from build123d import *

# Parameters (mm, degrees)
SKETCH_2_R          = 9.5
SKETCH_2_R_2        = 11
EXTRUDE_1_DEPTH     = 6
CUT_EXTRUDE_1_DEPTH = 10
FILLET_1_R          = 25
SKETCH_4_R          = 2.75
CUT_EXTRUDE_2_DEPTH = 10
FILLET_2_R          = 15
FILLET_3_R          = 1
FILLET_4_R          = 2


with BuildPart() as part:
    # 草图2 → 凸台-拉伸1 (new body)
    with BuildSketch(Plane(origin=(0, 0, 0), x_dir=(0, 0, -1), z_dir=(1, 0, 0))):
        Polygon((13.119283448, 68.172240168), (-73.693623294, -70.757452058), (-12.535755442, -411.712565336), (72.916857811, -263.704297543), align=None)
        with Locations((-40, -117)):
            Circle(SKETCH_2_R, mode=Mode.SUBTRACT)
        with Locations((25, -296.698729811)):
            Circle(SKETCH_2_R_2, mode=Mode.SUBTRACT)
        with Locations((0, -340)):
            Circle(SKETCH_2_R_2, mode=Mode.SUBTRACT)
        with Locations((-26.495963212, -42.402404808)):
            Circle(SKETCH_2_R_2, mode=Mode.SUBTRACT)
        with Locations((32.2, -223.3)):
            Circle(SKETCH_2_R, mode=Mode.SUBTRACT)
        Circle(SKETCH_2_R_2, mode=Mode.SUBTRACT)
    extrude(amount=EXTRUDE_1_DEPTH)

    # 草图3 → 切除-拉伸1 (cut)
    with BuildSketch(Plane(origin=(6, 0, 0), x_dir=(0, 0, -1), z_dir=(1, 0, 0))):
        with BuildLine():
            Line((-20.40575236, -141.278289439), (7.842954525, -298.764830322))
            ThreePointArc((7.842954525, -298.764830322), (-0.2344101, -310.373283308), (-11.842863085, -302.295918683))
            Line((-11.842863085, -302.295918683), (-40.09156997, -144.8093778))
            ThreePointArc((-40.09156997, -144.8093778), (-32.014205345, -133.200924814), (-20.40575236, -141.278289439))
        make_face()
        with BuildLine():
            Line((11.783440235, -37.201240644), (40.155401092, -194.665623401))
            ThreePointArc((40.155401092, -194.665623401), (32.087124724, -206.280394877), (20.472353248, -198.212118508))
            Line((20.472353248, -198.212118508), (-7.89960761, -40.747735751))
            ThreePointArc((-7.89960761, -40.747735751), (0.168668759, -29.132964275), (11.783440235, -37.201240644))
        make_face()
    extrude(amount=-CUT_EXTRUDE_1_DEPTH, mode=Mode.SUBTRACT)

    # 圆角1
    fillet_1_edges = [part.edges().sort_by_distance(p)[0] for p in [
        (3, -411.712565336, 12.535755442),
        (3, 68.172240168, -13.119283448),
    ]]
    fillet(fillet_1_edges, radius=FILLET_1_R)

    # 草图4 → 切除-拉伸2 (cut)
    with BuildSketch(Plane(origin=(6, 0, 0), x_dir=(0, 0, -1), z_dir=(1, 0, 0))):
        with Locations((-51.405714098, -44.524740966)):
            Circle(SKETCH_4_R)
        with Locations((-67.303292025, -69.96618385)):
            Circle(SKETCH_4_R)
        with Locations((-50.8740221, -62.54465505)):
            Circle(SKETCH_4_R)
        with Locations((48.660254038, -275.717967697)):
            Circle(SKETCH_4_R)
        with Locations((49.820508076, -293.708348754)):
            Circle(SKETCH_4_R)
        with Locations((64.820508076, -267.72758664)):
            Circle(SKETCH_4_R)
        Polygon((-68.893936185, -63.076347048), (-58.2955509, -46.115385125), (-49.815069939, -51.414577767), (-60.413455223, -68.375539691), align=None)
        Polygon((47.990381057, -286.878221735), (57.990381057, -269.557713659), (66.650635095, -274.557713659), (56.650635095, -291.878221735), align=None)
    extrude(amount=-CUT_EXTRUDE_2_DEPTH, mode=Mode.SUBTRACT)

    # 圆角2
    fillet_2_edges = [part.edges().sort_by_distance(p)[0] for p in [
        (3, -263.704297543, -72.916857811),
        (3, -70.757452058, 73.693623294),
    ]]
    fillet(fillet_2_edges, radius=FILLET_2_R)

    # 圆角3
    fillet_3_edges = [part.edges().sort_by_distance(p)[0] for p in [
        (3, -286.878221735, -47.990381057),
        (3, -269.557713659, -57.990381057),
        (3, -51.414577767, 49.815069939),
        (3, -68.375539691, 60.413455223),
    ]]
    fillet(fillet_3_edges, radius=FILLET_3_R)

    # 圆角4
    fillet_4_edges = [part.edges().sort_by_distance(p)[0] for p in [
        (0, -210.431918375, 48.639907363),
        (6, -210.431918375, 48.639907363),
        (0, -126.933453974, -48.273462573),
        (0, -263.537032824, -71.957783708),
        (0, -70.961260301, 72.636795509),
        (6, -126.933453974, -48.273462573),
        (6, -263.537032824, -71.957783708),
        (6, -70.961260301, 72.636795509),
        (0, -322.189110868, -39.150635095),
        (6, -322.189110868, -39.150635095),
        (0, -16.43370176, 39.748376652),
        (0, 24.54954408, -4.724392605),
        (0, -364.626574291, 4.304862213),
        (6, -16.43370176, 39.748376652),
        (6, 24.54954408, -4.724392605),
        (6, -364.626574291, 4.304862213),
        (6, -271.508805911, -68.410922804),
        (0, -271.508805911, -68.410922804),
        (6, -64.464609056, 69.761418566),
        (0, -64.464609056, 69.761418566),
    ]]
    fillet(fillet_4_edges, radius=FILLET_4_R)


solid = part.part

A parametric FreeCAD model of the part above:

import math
import FreeCAD as App
import Part
import Sketcher

V = App.Vector
Q = App.Units.Quantity


def edges_at(feature, points):
    """Names of the edges that pass closest to the given points."""
    edges = feature.Shape.Edges
    near = lambda p: min(range(len(edges)), key=lambda i: edges[i].distToShape(Part.Vertex(*p))[0])
    return sorted({f"Edge{near(p) + 1}" for p in points})

doc = App.newDocument("Part")
body = doc.addObject("PartDesign::Body", "Body")

sketch1 = body.newObject("Sketcher::SketchObject", "Sketch")
sketch1.AttachmentSupport = (doc.getObject("YZ_Plane"), [""])
sketch1.MapMode = "FlatFace"
sketch1.addGeometry([
    Part.LineSegment(V(68, -13, 0), V(-71, 74, 0)),
    Part.LineSegment(V(-71, 74, 0), V(-412, 13, 0)),
    Part.LineSegment(V(-412, 13, 0), V(-264, -73, 0)),
    Part.LineSegment(V(-264, -73, 0), V(68, -13, 0)),
    Part.Circle(V(-340, 0, 0), V(0, 0, 1), 11),
    Part.Circle(V(-297, -25, 0), V(0, 0, 1), 11),
    Part.Circle(V(-223, -32, 0), V(0, 0, 1), 10),
    Part.Circle(V(-117, 40, 0), V(0, 0, 1), 10),
    Part.Circle(V(-42, 26, 0), V(0, 0, 1), 11),
    Part.Circle(V(0, 0, 0), V(0, 0, 1), 11),
], False)
sketch1.addConstraint([
    Sketcher.Constraint("Coincident", 0, 2, 1, 1),
    Sketcher.Constraint("Coincident", 1, 2, 2, 1),
    Sketcher.Constraint("Coincident", 2, 2, 3, 1),
    Sketcher.Constraint("Coincident", 3, 2, 0, 1),
    Sketcher.Constraint("Coincident", 9, 3, -1, 1),
    Sketcher.Constraint("Equal", 4, 5),
    Sketcher.Constraint("Equal", 6, 7),
    Sketcher.Constraint("Equal", 5, 8),
    Sketcher.Constraint("Equal", 8, 9),
    Sketcher.Constraint("PointOnObject", 4, 3, -1),
    Sketcher.Constraint("Diameter", 4, 22.0),
    Sketcher.Constraint("Diameter", 6, 19.0),
    Sketcher.Constraint("Angle", 0, Q("148 deg")),
    Sketcher.Constraint("Angle", 2, Q("-30 deg")),
    Sketcher.Constraint("DistanceX", 4, 3, -1, 1, 340.0),
    Sketcher.Constraint("DistanceY", 5, 3, -1, 1, 25.0),
    Sketcher.Constraint("DistanceX", 7, 3, -1, 1, 117.0),
    Sketcher.Constraint("DistanceY", -1, 1, 7, 3, 40.0),
    Sketcher.Constraint("DistanceX", 6, 3, -1, 1, 223.3),
    Sketcher.Constraint("DistanceY", 6, 3, -1, 1, 32.2),
    Sketcher.Constraint("Distance", 1, 346.3967),
    Sketcher.Constraint("Distance", 3, 337.220679),
    Sketcher.Constraint("DistanceX", 5, 3, -1, 1, 296.69873),
    Sketcher.Constraint("DistanceX", -1, 1, 3, 2, 68.17224),
    Sketcher.Constraint("DistanceY", 8, 3, 0, 2, 47.19766),
    Sketcher.Constraint("Distance", 0, 163.822893),
    Sketcher.Constraint("DistanceX", 8, 3, -1, 1, 42.402405),
    Sketcher.Constraint("DistanceY", -1, 1, 8, 3, 26.495963),
    Sketcher.Constraint("DistanceX", 1, 2, -1, 1, 411.712565),
])
pad1 = body.newObject("PartDesign::Pad", "Pad")
pad1.Profile = sketch1
pad1.Length = 6

sketch2 = body.newObject("Sketcher::SketchObject", "Sketch001")
sketch2.AttachmentSupport = (doc.getObject("YZ_Plane"), [""])
sketch2.MapMode = "FlatFace"
sketch2.AttachmentOffset = App.Placement(V(0, 0, 6), App.Rotation())
sketch2.addGeometry([
    Part.LineSegment(V(-299, -8, 0), V(-141, 20, 0)),
    Part.ArcOfCircle(Part.Circle(V(-143, 30, 0), V(0, 0, 1), 10), math.radians(-80), math.radians(100)),
    Part.LineSegment(V(-145, 40, 0), V(-302, 12, 0)),
    Part.ArcOfCircle(Part.Circle(V(-301, 2, 0), V(0, 0, 1), 10), math.radians(100), math.radians(280)),
    Part.LineSegment(V(-195, -40, 0), V(-37, -12, 0)),
    Part.ArcOfCircle(Part.Circle(V(-39, -2, 0), V(0, 0, 1), 10), math.radians(-80), math.radians(100)),
    Part.LineSegment(V(-41, 8, 0), V(-198, -20, 0)),
    Part.ArcOfCircle(Part.Circle(V(-196, -30, 0), V(0, 0, 1), 10), math.radians(100), math.radians(280)),
], False)
sketch2.addConstraint([
    Sketcher.Constraint("Tangent", 0, 2, 1, 1),
    Sketcher.Constraint("Tangent", 1, 2, 2, 1),
    Sketcher.Constraint("Tangent", 2, 2, 3, 1),
    Sketcher.Constraint("Tangent", 3, 2, 0, 1),
    Sketcher.Constraint("Tangent", 4, 2, 5, 1),
    Sketcher.Constraint("Tangent", 5, 2, 6, 1),
    Sketcher.Constraint("Tangent", 6, 2, 7, 1),
    Sketcher.Constraint("Tangent", 7, 2, 4, 1),
    Sketcher.Constraint("Equal", 1, 3),
    Sketcher.Constraint("Equal", 3, 5),
    Sketcher.Constraint("Equal", 5, 7),
    Sketcher.Constraint("Equal", 2, 4),
    Sketcher.Constraint("Radius", 1, 10.0),
    Sketcher.Constraint("Distance", 0, 160.0),
    Sketcher.Constraint("DistanceY", 7, 2, -1, 1, 40.155401),
    Sketcher.Constraint("DistanceX", 0, 2, 5, 3, 102.303801),
    Sketcher.Constraint("DistanceY", 3, 3, 0, 2, 18.405798),
    Sketcher.Constraint("DistanceY", 4, 2, 1, 3, 42.032101),
    Sketcher.Constraint("DistanceY", 6, 2, 3, 2, 12.629399),
    Sketcher.Constraint("DistanceX", 5, 3, -1, 1, 38.974488),
])
pocket1 = body.newObject("PartDesign::Pocket", "Pocket")
pocket1.Profile = sketch2
pocket1.Length = 10
doc.recompute()

fillet = body.newObject("PartDesign::Fillet", "Fillet")
fillet.Base = (pocket1, edges_at(pocket1, [(3, -411.713, 12.536), (3, 68.172, -13.119)]))
fillet.Radius = 25

sketch3 = body.newObject("Sketcher::SketchObject", "Sketch002")
sketch3.AttachmentSupport = (doc.getObject("YZ_Plane"), [""])
sketch3.MapMode = "FlatFace"
sketch3.AttachmentOffset = App.Placement(V(0, 0, 6), App.Rotation())
sketch3.addGeometry([
    Part.Circle(V(-44.5, 51.4, 0), V(0, 0, 1), 2.8),
    Part.Circle(V(-70, 67.3, 0), V(0, 0, 1), 2.8),
    Part.Circle(V(-62.5, 50.9, 0), V(0, 0, 1), 2.8),
    Part.Circle(V(-275.7, -48.7, 0), V(0, 0, 1), 2.8),
    Part.Circle(V(-293.7, -49.8, 0), V(0, 0, 1), 2.8),
    Part.Circle(V(-267.7, -64.8, 0), V(0, 0, 1), 2.8),
    Part.LineSegment(V(-46.1, 58.3, 0), V(-63.1, 68.9, 0)),
    Part.LineSegment(V(-63.1, 68.9, 0), V(-68.4, 60.4, 0)),
    Part.LineSegment(V(-68.4, 60.4, 0), V(-51.4, 49.8, 0)),
    Part.LineSegment(V(-51.4, 49.8, 0), V(-46.1, 58.3, 0)),
    Part.LineSegment(V(-269.6, -58, 0), V(-286.9, -48, 0)),
    Part.LineSegment(V(-286.9, -48, 0), V(-291.9, -56.7, 0)),
    Part.LineSegment(V(-291.9, -56.7, 0), V(-274.6, -66.7, 0)),
    Part.LineSegment(V(-274.6, -66.7, 0), V(-269.6, -58, 0)),
], False)
sketch3.addConstraint([
    Sketcher.Constraint("Coincident", 6, 2, 7, 1),
    Sketcher.Constraint("Coincident", 7, 2, 8, 1),
    Sketcher.Constraint("Coincident", 8, 2, 9, 1),
    Sketcher.Constraint("Coincident", 9, 2, 6, 1),
    Sketcher.Constraint("Coincident", 10, 2, 11, 1),
    Sketcher.Constraint("Coincident", 11, 2, 12, 1),
    Sketcher.Constraint("Coincident", 12, 2, 13, 1),
    Sketcher.Constraint("Coincident", 13, 2, 10, 1),
    Sketcher.Constraint("Equal", 0, 1),
    Sketcher.Constraint("Equal", 1, 2),
    Sketcher.Constraint("Equal", 2, 3),
    Sketcher.Constraint("Equal", 3, 4),
    Sketcher.Constraint("Equal", 4, 5),
    Sketcher.Constraint("Perpendicular", 6, 7),
    Sketcher.Constraint("Perpendicular", 7, 8),
    Sketcher.Constraint("Perpendicular", 8, 9),
    Sketcher.Constraint("Perpendicular", 10, 11),
    Sketcher.Constraint("Perpendicular", 11, 12),
    Sketcher.Constraint("Perpendicular", 12, 13),
    Sketcher.Constraint("Equal", 8, 10),
    Sketcher.Constraint("Equal", 9, 11),
    Sketcher.Constraint("Diameter", 0, 5.5),
    Sketcher.Constraint("Angle", 6, Q("148 deg")),
    Sketcher.Constraint("Angle", 10, Q("150 deg")),
    Sketcher.Constraint("Distance", 6, 20.0),
    Sketcher.Constraint("Distance", 7, 10.0),
    Sketcher.Constraint("DistanceY", 5, 3, 4, 3, 15.0),
    Sketcher.Constraint("DistanceY", 4, 3, 1, 3, 117.1238),
    Sketcher.Constraint("DistanceX", 7, 2, 0, 3, 23.850799),
    Sketcher.Constraint("DistanceX", 0, 3, -1, 1, 44.524741),
    Sketcher.Constraint("DistanceX", 4, 3, -1, 1, 293.708349),
    Sketcher.Constraint("DistanceY", 4, 3, -1, 1, 49.820508),
    Sketcher.Constraint("DistanceY", -1, 1, 8, 2, 49.81507),
    Sketcher.Constraint("DistanceX", 10, 2, -1, 1, 286.878222),
    Sketcher.Constraint("DistanceY", 10, 2, -1, 1, 47.990381),
    Sketcher.Constraint("DistanceY", 2, 3, 0, 3, 0.531692),
    Sketcher.Constraint("DistanceX", 1, 3, 2, 3, 7.421529),
    Sketcher.Constraint("DistanceY", 2, 3, 1, 3, 16.42927),
    Sketcher.Constraint("DistanceY", 3, 3, 0, 3, 100.065968),
    Sketcher.Constraint("DistanceX", 4, 3, 3, 3, 17.990381),
    Sketcher.Constraint("DistanceX", 3, 3, 5, 3, 7.990381),
    Sketcher.Constraint("DistanceX", 5, 3, 2, 3, 205.182932),
])
pocket2 = body.newObject("PartDesign::Pocket", "Pocket001")
pocket2.Profile = sketch3
pocket2.Length = 10
doc.recompute()

fillet2 = body.newObject("PartDesign::Fillet", "Fillet001")
fillet2.Base = (pocket2, edges_at(pocket2, [(3, -263.704, -72.917), (3, -70.757, 73.694)]))
fillet2.Radius = 15
doc.recompute()

fillet3 = body.newObject("PartDesign::Fillet", "Fillet002")
fillet3.Base = (fillet2, edges_at(fillet2, [
    (3, -286.878, -47.99),
    (3, -269.558, -57.99),
    (3, -51.415, 49.815),
    (3, -68.376, 60.413),
]))
fillet3.Radius = 1
doc.recompute()

fillet4 = body.newObject("PartDesign::Fillet", "Fillet003")
fillet4.Base = (fillet3, edges_at(fillet3, [
    (0, -210.432, 48.64),
    (6, -210.432, 48.64),
    (0, -126.933, -48.273),
    (0, -263.537, -71.958),
    (0, -70.961, 72.637),
    (6, -126.933, -48.273),
    (6, -263.537, -71.958),
    (6, -70.961, 72.637),
    (0, -322.189, -39.151),
    (6, -322.189, -39.151),
    (0, -16.434, 39.748),
    (0, 24.55, -4.724),
    (0, -364.627, 4.305),
    (6, -16.434, 39.748),
    (6, 24.55, -4.724),
    (6, -364.627, 4.305),
    (6, -271.509, -68.411),
    (0, -271.509, -68.411),
    (6, -64.465, 69.761),
    (0, -64.465, 69.761),
]))
fillet4.Radius = 2

doc.recompute()
